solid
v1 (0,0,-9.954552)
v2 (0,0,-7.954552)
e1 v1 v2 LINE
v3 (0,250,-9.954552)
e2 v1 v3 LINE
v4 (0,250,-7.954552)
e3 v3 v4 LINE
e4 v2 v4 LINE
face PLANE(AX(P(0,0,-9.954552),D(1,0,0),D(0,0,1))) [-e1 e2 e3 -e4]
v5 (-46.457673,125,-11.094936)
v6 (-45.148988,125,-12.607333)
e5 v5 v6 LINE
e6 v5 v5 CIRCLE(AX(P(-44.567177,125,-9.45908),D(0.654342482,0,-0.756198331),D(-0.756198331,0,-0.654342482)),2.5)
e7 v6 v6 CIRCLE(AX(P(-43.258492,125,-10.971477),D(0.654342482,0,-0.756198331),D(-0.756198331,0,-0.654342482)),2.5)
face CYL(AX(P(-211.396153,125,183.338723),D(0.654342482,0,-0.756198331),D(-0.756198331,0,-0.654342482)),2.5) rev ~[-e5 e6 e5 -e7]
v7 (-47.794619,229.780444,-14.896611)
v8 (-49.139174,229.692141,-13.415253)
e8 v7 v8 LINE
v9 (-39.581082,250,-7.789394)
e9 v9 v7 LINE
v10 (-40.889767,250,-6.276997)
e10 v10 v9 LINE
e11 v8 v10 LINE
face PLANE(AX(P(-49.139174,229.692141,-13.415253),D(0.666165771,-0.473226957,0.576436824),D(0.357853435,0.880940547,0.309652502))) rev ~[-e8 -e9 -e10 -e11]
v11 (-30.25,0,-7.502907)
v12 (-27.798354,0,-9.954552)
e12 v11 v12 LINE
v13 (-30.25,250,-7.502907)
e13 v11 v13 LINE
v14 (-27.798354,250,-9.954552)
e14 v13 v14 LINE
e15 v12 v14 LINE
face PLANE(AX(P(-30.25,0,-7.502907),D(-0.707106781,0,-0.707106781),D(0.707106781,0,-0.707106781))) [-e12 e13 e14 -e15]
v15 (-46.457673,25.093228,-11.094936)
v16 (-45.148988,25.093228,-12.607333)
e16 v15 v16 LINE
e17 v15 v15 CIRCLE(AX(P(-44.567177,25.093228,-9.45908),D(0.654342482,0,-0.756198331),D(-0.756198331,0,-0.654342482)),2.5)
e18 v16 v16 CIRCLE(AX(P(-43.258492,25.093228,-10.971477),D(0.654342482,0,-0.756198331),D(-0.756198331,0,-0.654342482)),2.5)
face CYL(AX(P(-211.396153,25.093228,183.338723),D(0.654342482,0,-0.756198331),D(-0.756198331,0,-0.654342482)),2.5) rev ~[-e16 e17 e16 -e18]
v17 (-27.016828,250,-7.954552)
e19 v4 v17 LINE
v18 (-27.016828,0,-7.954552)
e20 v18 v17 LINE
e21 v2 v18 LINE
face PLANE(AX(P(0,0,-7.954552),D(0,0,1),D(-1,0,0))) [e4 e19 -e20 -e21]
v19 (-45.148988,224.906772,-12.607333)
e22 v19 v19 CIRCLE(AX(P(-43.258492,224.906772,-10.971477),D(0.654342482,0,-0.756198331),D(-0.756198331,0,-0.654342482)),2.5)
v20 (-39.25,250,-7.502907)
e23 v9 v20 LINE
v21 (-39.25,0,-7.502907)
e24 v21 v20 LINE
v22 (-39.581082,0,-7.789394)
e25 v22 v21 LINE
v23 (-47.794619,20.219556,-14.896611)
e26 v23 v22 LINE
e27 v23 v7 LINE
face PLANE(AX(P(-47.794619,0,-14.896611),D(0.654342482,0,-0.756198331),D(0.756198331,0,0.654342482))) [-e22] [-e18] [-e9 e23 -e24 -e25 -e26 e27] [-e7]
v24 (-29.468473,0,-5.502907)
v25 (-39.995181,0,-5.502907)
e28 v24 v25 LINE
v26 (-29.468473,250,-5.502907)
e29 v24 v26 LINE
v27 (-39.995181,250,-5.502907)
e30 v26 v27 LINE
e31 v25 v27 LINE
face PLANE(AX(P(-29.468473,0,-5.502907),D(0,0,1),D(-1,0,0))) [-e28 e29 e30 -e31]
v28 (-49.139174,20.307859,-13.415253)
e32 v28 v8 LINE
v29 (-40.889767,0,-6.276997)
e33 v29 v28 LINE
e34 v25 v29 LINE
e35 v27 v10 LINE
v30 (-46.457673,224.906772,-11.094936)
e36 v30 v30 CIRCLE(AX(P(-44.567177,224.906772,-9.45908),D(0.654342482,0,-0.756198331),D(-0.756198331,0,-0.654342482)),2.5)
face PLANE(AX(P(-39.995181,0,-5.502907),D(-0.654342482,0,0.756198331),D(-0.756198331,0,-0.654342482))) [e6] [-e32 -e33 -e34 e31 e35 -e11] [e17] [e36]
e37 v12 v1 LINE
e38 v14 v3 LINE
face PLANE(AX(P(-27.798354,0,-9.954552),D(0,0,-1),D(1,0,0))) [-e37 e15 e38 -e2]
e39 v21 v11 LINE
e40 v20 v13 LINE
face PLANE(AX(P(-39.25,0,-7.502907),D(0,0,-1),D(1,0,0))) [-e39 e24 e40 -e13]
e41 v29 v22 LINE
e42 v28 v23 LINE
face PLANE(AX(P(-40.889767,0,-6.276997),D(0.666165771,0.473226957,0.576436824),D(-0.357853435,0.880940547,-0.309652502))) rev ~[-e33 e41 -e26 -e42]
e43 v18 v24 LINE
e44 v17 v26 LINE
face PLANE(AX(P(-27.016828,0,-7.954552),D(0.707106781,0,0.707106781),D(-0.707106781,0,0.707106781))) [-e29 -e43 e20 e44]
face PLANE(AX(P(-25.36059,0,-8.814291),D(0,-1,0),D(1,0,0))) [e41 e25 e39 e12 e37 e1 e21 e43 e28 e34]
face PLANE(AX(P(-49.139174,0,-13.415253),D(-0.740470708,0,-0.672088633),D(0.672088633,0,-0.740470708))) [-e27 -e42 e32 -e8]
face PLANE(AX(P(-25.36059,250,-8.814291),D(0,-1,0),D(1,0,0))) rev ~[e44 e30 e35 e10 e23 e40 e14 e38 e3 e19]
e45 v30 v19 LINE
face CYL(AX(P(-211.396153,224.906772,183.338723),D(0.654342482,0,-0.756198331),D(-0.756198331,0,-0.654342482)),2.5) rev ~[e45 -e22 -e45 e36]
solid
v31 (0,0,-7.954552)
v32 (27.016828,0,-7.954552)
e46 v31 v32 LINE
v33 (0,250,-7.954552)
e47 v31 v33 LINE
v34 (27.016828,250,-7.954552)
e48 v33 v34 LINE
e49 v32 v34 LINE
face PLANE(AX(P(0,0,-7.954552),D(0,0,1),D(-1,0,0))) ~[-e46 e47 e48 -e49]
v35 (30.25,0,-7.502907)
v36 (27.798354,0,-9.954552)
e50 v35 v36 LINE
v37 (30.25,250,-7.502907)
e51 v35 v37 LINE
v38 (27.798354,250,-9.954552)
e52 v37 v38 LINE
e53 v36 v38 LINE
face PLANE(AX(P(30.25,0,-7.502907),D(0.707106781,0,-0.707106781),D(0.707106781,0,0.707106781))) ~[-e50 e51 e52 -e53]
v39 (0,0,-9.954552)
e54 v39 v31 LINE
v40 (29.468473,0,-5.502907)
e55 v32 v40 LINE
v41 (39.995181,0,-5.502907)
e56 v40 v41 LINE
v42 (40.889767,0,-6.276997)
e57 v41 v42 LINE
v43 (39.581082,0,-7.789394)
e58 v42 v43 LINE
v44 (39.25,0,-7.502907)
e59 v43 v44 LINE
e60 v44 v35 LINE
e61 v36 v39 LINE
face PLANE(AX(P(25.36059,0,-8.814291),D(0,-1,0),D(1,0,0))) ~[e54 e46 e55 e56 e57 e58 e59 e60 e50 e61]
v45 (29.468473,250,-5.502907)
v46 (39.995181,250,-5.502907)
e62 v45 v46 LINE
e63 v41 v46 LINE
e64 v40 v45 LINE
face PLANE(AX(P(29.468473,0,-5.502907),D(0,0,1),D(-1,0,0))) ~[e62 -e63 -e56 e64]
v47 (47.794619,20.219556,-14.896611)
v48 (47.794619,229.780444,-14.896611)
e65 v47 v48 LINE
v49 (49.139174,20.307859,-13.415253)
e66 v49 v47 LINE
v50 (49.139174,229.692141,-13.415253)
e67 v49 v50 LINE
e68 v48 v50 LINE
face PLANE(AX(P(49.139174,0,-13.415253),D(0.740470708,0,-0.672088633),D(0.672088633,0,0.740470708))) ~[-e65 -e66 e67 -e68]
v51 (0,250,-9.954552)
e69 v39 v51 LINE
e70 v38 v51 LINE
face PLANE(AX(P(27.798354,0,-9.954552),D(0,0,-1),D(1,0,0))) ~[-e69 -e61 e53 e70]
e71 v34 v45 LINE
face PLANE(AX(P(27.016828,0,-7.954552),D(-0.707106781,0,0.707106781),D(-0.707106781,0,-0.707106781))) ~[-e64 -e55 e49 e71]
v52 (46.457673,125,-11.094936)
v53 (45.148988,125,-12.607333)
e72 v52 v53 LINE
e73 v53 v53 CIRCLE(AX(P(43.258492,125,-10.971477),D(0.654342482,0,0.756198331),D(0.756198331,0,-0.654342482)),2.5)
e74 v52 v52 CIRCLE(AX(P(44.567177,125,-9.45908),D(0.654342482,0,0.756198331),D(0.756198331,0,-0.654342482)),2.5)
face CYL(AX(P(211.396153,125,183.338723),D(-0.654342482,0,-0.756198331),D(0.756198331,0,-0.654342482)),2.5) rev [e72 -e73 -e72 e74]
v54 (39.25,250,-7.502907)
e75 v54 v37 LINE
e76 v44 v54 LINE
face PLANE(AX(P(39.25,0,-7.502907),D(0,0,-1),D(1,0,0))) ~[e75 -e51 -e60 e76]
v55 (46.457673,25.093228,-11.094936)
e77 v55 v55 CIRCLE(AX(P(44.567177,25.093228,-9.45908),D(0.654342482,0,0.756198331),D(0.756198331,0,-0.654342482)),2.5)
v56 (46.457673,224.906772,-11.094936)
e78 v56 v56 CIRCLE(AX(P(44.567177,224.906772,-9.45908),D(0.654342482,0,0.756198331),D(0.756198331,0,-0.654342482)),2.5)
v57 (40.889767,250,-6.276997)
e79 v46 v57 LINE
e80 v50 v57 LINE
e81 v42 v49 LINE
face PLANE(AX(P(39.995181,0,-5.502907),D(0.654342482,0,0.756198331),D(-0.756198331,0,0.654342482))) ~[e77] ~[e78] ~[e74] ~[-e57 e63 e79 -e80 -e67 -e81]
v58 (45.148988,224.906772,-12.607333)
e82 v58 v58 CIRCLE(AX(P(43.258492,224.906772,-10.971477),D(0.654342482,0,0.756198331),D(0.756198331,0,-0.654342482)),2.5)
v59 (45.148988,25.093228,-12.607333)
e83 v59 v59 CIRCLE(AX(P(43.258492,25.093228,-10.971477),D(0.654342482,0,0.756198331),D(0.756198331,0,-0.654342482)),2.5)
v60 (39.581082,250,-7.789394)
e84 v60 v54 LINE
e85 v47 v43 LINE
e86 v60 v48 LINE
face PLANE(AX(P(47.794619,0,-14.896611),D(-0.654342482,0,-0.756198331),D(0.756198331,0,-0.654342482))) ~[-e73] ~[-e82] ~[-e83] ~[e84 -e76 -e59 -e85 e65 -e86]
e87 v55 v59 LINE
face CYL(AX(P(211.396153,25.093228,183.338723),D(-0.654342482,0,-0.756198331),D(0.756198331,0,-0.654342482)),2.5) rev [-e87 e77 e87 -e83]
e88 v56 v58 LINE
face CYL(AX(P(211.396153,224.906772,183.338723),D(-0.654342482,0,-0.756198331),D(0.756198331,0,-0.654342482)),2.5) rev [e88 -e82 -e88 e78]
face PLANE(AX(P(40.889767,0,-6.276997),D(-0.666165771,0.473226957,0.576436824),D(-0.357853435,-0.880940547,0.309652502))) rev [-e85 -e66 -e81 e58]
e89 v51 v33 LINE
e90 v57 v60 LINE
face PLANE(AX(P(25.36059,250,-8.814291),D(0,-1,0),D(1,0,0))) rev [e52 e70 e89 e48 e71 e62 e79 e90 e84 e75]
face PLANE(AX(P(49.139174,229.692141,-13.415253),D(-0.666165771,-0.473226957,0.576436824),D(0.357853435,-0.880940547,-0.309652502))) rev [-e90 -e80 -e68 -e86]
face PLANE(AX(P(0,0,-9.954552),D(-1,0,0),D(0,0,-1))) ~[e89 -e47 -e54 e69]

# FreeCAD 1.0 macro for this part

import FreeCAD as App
import Part
import Sketcher

V = App.Vector
Q = App.Units.Quantity

doc = App.newDocument("Part")
params = doc.addObject("Spreadsheet::Sheet", "Params")
for row, (alias, value) in enumerate([
    ("sketch1_width", "9 mm"),
    ("sketch1_height", "2 mm"),
    ("pad1_length", "250 mm"),
    ("sketch2_diameter", "5 mm"),
    ("hole_diameter", "5 mm"),
], start=1):
    params.set(f"A{row}", alias)
    params.set(f"B{row}", "=" + value)
    params.setAlias(f"B{row}", alias)

body = doc.addObject("PartDesign::Body", "Body")

# Sketch on XZ plane
sketch1 = body.newObject("Sketcher::SketchObject", "Sketch")
sketch1.AttachmentSupport = (doc.getObject("XZ_Plane"), [""])
sketch1.MapMode = "FlatFace"
sketch1.addGeometry(Part.LineSegment(V(-29.468473, -5.502907, 0), V(-39.995181, -5.502907, 0)), False)
sketch1.addGeometry(Part.LineSegment(V(-39.995181, -5.502907, 0), V(-49.139174, -13.415253, 0)), False)
sketch1.addGeometry(Part.LineSegment(V(-49.139174, -13.415253, 0), V(-47.794619, -14.896611, 0)), False)
sketch1.addGeometry(Part.LineSegment(V(-47.794619, -14.896611, 0), V(-39.25, -7.502907, 0)), False)
sketch1.addGeometry(Part.LineSegment(V(-39.25, -7.502907, 0), V(-30.25, -7.502907, 0)), False)
sketch1.addGeometry(Part.LineSegment(V(-30.25, -7.502907, 0), V(-27.798354, -9.954552, 0)), False)
sketch1.addGeometry(Part.LineSegment(V(-27.798354, -9.954552, 0), V(0, -9.954552, 0)), False)
sketch1.addGeometry(Part.LineSegment(V(0, -9.954552, 0), V(0, -7.954552, 0)), False)
sketch1.addGeometry(Part.LineSegment(V(0, -7.954552, 0), V(-27.016828, -7.954552, 0)), False)
sketch1.addGeometry(Part.LineSegment(V(-27.016828, -7.954552, 0), V(-29.468473, -5.502907, 0)), False)
sketch1.addConstraint(Sketcher.Constraint("Coincident", 0, 2, 1, 1))
sketch1.addConstraint(Sketcher.Constraint("Coincident", 1, 2, 2, 1))
sketch1.addConstraint(Sketcher.Constraint("Coincident", 2, 2, 3, 1))
sketch1.addConstraint(Sketcher.Constraint("Coincident", 3, 2, 4, 1))
sketch1.addConstraint(Sketcher.Constraint("Coincident", 4, 2, 5, 1))
sketch1.addConstraint(Sketcher.Constraint("Coincident", 5, 2, 6, 1))
sketch1.addConstraint(Sketcher.Constraint("Coincident", 6, 2, 7, 1))
sketch1.addConstraint(Sketcher.Constraint("Coincident", 7, 2, 8, 1))
sketch1.addConstraint(Sketcher.Constraint("Coincident", 8, 2, 9, 1))
sketch1.addConstraint(Sketcher.Constraint("Coincident", 9, 2, 0, 1))
sketch1.addConstraint(Sketcher.Constraint("Horizontal", 0))
sketch1.addConstraint(Sketcher.Constraint("Horizontal", 4))
sketch1.addConstraint(Sketcher.Constraint("Horizontal", 6))
sketch1.addConstraint(Sketcher.Constraint("Vertical", 7))
sketch1.addConstraint(Sketcher.Constraint("Horizontal", 8))
sketch1.addConstraint(Sketcher.Constraint("PointOnObject", 6, 2, -2))
sketch1.addConstraint(Sketcher.Constraint("Parallel", 1, 3))
sketch1.addConstraint(Sketcher.Constraint("Parallel", 5, 9))
sketch1.addConstraint(Sketcher.Constraint("Equal", 5, 9))
sketch1.addConstraint(Sketcher.Constraint("DistanceX", 4, 1, 4, 2, Q("9 mm")))
sketch1.addConstraint(Sketcher.Constraint("DistanceY", 7, 1, 7, 2, Q("2 mm")))
sketch1.addConstraint(Sketcher.Constraint("Angle", 5, Q("-45 deg")))
sketch1.addConstraint(Sketcher.Constraint("DistanceX", 3, 2, -1, 1, Q("39.25 mm")))
sketch1.addConstraint(Sketcher.Constraint("DistanceY", 1, 2, 5, 2, Q("3.460701 mm")))
sketch1.addConstraint(Sketcher.Constraint("Distance", 3, Q("11.299441 mm")))
sketch1.addConstraint(Sketcher.Constraint("Distance", 5, Q("3.467151 mm")))
sketch1.addConstraint(Sketcher.Constraint("DistanceX", 0, 2, 0, 1, Q("10.526707 mm")))
sketch1.addConstraint(Sketcher.Constraint("DistanceX", 8, 2, 8, 1, Q("27.016828 mm")))
sketch1.addConstraint(Sketcher.Constraint("DistanceX", 2, 2, -1, 1, Q("47.794619 mm")))
sketch1.addConstraint(Sketcher.Constraint("DistanceY", 2, 2, -1, 1, Q("14.896611 mm")))
sketch1.setExpression("Constraints[19]", "Params.sketch1_width")
sketch1.setExpression("Constraints[20]", "Params.sketch1_height")
pad1 = body.newObject("PartDesign::Pad", "Pad")
pad1.Profile = sketch1
pad1.setExpression("Length", "Params.pad1_length")
pad1.Reversed = True

# Sketch on an angled plane
sketch2 = body.newObject("Sketcher::SketchObject", "Sketch001")
sketch2.Placement = App.Placement(V(-14.401592, 0, 16.643363), App.Rotation(V(0.756198331, 0, 0.654342482), V(0, 1, 0), V(-0.654342482, 0, 0.756198331), "ZXY"))
sketch2.addGeometry(Part.Circle(V(-39.891103, 224.906772, 0), V(0, 0, 1), 2.5), False)
sketch2.addGeometry(Part.Circle(V(-39.891103, 125, 0), V(0, 0, 1), 2.5), False)
sketch2.addGeometry(Part.Circle(V(-39.891103, 25.093228, 0), V(0, 0, 1), 2.5), False)
sketch2.addConstraint(Sketcher.Constraint("Equal", 0, 1))
sketch2.addConstraint(Sketcher.Constraint("Equal", 1, 2))
sketch2.addConstraint(Sketcher.Constraint("Vertical", 0, 3, 1, 3))
sketch2.addConstraint(Sketcher.Constraint("Vertical", 1, 3, 2, 3))
sketch2.addConstraint(Sketcher.Constraint("Diameter", 0, Q("5 mm")))
sketch2.addConstraint(Sketcher.Constraint("DistanceY", -1, 1, 1, 3, Q("125 mm")))
sketch2.addConstraint(Sketcher.Constraint("DistanceX", 0, 3, -1, 1, Q("39.891103 mm")))
sketch2.addConstraint(Sketcher.Constraint("DistanceY", -1, 1, 0, 3, Q("224.906772 mm")))
sketch2.addConstraint(Sketcher.Constraint("DistanceY", -1, 1, 2, 3, Q("25.093228 mm")))
sketch2.setExpression("Constraints[4]", "Params.sketch2_diameter")
doc.recompute()
hole = body.newObject("PartDesign::Hole", "Hole")
hole.Profile = sketch2
hole.ThreadType = "None"
hole.setExpression("Diameter", "Params.hole_diameter")
hole.DepthType = "ThroughAll"

# Sketch on an angled plane
sketch3 = body.newObject("Sketcher::SketchObject", "Sketch002")
sketch3.Placement = App.Placement(V(-14.401592, 0, 16.643363), App.Rotation(V(0.756198331, 0, 0.654342482), V(0, 1, 0), V(-0.654342482, 0, 0.756198331), "ZXY"))
sketch3.addGeometry(Part.LineSegment(V(-45.937131, 229.692141, 0), V(-35.028079, 250, 0)), False)
sketch3.addGeometry(Part.LineSegment(V(-35.028079, 250, 0), V(-45.937131, 250, 0)), False)
sketch3.addGeometry(Part.LineSegment(V(-45.937131, 250, 0), V(-45.937131, 229.692141, 0)), False)
sketch3.addGeometry(Part.LineSegment(V(-35.028079, 0, 0), V(-45.937131, 20.307859, 0)), False)
sketch3.addGeometry(Part.LineSegment(V(-45.937131, 20.307859, 0), V(-45.937131, 0, 0)), False)
sketch3.addGeometry(Part.LineSegment(V(-45.937131, 0, 0), V(-35.028079, 0, 0)), False)
sketch3.addConstraint(Sketcher.Constraint("Coincident", 0, 2, 1, 1))
sketch3.addConstraint(Sketcher.Constraint("Coincident", 1, 2, 2, 1))
sketch3.addConstraint(Sketcher.Constraint("Coincident", 2, 2, 0, 1))
sketch3.addConstraint(Sketcher.Constraint("Coincident", 3, 2, 4, 1))
sketch3.addConstraint(Sketcher.Constraint("Coincident", 4, 2, 5, 1))
sketch3.addConstraint(Sketcher.Constraint("Coincident", 5, 2, 3, 1))
sketch3.addConstraint(Sketcher.Constraint("Horizontal", 1))
sketch3.addConstraint(Sketcher.Constraint("Vertical", 2))
sketch3.addConstraint(Sketcher.Constraint("Vertical", 4))
sketch3.addConstraint(Sketcher.Constraint("Horizontal", 5))
sketch3.addConstraint(Sketcher.Constraint("PointOnObject", 4, 2, -1))
sketch3.addConstraint(Sketcher.Constraint("Vertical", 2, 2, 3, 2))
sketch3.addConstraint(Sketcher.Constraint("Vertical", 0, 2, 5, 2))
sketch3.addConstraint(Sketcher.Constraint("Equal", 2, 4))
sketch3.addConstraint(Sketcher.Constraint("DistanceY", -1, 1, 0, 2, Q("250 mm")))
sketch3.addConstraint(Sketcher.Constraint("DistanceX", 1, 2, 1, 1, Q("10.909052 mm")))
sketch3.addConstraint(Sketcher.Constraint("DistanceY", 2, 2, 2, 1, Q("20.307859 mm")))
sketch3.addConstraint(Sketcher.Constraint("DistanceX", 0, 2, -1, 1, Q("35.028079 mm")))
pocket1 = body.newObject("PartDesign::Pocket", "Pocket")
pocket1.Profile = sketch3
pocket1.Type = "ThroughAll"
body2 = doc.addObject("PartDesign::Body", "Body001")
doc.recompute()

mirroring = doc.addObject("Part::Mirroring", "Mirroring")
mirroring.Source = body
mirroring.Base = V(0, 260, 0)
mirroring.Normal = V(-1, 0, 0)
body2.BaseFeature = mirroring
doc.recompute()
mirroring.Visibility = False

doc.recompute()
